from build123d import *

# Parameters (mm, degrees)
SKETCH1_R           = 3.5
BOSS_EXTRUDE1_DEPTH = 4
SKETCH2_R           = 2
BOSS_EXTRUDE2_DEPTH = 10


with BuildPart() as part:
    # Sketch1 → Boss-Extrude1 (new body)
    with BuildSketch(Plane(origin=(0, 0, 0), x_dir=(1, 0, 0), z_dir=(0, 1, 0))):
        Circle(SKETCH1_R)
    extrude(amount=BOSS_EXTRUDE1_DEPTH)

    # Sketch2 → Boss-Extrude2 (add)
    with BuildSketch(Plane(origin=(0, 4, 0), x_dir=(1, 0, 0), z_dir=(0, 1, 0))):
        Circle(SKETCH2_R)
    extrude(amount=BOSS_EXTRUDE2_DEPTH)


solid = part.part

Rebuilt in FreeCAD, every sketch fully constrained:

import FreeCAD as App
import Part
import Sketcher
from FreeCAD import Vector

doc = App.newDocument("Part")
body = doc.addObject("PartDesign::Body", "Body")

# Sketch on XZ plane
sketch1 = body.newObject("Sketcher::SketchObject", "Sketch")
sketch1.AttachmentSupport = (doc.getObject("XZ_Plane"), [""])
sketch1.MapMode = "FlatFace"
sketch1.addGeometry(Part.Circle(Vector(0, 0, 0), Vector(0, 0, 1), 3.5), False)
sketch1.addConstraint([
    Sketcher.Constraint("Coincident", 0, 3, -1, 1),
    Sketcher.Constraint("Diameter", 0, 7.0),
])
pad1 = body.newObject("PartDesign::Pad", "Pad")
pad1.Profile = sketch1
pad1.Length = 4
pad1.Reversed = True

# Sketch on XZ plane
sketch2 = body.newObject("Sketcher::SketchObject", "Sketch001")
sketch2.AttachmentSupport = (doc.getObject("XZ_Plane"), [""])
sketch2.MapMode = "FlatFace"
sketch2.AttachmentOffset = App.Placement(Vector(0, 0, -4), App.Rotation())
sketch2.addGeometry(Part.Circle(Vector(0, 0, 0), Vector(0, 0, 1), 2), False)
sketch2.addConstraint([
    Sketcher.Constraint("Coincident", 0, 3, -1, 1),
    Sketcher.Constraint("Diameter", 0, 4.0),
])
pad2 = body.newObject("PartDesign::Pad", "Pad001")
pad2.Profile = sketch2
pad2.Length = 10
pad2.Reversed = True

doc.recompute()
